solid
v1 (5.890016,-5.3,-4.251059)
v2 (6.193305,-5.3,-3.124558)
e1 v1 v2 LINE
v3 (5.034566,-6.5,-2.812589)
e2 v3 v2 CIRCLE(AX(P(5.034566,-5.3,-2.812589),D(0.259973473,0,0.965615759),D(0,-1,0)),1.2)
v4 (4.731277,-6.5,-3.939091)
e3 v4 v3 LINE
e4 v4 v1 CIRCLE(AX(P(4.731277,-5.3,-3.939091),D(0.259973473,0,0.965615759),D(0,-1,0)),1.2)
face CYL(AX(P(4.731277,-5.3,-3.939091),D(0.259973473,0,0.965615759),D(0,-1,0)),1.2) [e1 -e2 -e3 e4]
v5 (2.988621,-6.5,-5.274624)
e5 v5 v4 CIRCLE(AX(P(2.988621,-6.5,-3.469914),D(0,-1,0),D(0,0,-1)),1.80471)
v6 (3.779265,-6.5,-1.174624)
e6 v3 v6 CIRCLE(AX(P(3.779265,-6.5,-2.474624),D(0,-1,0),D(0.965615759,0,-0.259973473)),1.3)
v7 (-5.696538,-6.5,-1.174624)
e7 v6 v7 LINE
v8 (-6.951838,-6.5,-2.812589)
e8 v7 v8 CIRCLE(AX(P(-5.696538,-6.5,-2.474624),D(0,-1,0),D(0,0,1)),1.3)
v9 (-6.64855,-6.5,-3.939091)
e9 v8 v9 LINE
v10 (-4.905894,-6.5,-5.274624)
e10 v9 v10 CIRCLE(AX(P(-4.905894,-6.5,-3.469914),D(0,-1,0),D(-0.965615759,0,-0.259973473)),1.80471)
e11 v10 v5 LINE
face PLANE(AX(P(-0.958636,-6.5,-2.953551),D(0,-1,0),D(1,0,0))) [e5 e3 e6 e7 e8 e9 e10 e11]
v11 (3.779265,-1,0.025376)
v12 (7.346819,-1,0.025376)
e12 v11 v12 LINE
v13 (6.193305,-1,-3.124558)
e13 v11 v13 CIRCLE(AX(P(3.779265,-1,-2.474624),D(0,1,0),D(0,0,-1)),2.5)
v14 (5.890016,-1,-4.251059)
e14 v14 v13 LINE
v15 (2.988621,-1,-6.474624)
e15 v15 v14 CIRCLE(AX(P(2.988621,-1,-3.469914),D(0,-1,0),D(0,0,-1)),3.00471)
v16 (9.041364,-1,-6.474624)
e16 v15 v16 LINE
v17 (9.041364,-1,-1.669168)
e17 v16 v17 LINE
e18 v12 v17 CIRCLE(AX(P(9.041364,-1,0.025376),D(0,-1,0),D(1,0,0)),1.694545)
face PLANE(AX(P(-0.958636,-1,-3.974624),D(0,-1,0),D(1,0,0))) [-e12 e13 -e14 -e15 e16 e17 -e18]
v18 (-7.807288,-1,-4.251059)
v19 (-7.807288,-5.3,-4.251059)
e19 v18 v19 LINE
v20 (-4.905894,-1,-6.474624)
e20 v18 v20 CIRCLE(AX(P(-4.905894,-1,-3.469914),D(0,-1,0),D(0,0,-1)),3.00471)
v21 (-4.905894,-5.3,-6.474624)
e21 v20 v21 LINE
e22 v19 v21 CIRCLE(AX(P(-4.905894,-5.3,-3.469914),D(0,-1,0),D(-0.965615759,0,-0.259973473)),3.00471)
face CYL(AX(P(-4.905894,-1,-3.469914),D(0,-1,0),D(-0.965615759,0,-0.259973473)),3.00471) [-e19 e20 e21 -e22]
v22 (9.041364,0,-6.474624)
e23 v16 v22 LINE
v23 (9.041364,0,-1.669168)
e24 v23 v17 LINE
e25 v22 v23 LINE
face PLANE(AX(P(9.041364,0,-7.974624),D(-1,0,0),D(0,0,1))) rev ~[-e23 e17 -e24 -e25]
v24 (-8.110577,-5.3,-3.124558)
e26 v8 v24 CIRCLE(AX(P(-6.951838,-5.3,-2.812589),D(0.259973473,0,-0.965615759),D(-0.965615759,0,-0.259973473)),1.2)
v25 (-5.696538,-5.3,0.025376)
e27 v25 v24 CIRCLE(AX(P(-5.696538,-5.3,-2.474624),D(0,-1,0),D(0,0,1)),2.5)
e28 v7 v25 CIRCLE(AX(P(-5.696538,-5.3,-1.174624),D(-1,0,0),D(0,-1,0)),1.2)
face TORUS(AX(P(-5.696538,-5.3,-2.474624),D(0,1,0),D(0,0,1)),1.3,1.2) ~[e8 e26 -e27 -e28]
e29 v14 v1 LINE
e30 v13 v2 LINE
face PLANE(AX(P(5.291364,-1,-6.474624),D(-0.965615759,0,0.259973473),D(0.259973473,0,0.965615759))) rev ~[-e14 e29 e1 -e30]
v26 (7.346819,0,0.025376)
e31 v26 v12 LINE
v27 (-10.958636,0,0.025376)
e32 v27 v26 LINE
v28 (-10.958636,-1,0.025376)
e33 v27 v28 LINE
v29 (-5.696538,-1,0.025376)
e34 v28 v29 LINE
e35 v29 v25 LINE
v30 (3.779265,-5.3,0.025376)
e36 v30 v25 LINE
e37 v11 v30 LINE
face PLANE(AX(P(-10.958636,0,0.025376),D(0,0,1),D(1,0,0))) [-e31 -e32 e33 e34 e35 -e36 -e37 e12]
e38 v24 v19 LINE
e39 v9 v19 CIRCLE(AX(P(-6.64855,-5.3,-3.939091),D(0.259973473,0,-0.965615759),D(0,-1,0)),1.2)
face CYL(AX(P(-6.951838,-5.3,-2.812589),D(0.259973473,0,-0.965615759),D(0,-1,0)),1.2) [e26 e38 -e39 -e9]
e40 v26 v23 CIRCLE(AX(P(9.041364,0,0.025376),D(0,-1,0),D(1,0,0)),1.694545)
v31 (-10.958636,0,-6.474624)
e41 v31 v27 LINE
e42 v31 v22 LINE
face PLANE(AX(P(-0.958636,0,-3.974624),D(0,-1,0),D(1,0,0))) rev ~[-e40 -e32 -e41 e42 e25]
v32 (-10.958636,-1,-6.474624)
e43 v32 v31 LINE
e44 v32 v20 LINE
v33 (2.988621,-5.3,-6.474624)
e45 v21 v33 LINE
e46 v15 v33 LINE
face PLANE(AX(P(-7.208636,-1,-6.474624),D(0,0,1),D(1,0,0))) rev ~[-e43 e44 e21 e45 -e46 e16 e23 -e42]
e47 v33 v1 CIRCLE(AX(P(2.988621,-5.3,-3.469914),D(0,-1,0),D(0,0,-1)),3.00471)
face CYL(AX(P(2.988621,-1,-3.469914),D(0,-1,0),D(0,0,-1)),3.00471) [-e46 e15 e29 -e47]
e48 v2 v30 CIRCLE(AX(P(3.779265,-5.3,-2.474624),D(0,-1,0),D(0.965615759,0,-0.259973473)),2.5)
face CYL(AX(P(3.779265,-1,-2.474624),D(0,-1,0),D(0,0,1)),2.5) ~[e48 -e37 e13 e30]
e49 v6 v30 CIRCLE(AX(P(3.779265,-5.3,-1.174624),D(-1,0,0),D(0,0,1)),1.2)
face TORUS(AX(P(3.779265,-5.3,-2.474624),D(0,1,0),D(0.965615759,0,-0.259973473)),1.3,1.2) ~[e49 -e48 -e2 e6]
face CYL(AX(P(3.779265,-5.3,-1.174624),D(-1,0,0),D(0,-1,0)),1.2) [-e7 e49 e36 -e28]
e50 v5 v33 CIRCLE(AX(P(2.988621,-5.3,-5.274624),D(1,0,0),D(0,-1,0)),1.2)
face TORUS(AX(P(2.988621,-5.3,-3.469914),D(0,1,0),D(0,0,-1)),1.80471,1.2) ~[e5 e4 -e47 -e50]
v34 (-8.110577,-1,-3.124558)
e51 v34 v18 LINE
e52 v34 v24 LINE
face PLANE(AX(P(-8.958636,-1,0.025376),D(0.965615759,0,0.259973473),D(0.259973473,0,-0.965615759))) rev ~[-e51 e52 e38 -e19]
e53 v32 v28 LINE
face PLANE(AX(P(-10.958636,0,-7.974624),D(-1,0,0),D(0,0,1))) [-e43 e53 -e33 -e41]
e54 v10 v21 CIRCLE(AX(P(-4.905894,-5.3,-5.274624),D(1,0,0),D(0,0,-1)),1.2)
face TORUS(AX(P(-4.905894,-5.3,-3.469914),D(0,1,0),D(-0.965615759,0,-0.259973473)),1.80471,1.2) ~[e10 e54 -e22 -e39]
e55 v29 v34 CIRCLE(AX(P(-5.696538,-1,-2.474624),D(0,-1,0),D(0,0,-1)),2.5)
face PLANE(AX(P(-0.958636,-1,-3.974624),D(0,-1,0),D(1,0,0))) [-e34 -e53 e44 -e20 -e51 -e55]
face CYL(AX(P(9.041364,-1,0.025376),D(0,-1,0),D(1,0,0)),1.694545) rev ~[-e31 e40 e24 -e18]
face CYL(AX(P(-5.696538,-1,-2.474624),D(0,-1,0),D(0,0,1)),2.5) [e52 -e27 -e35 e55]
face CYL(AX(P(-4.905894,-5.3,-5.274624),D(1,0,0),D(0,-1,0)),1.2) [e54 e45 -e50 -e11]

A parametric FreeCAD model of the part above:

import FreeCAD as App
import Part
import Sketcher
from FreeCAD import Vector
Q = App.Units.Quantity


def edges_at(feature, points):
    """Names of the edges that pass closest to the given points."""
    edges = feature.Shape.Edges
    near = lambda p: min(range(len(edges)), key=lambda i: edges[i].distToShape(Part.Vertex(*p))[0])
    return sorted({f"Edge{near(p) + 1}" for p in points})

doc = App.newDocument("Part")
body = doc.addObject("PartDesign::Body", "Body")

# Sketch on XZ plane
sketch1 = body.newObject("Sketcher::SketchObject", "Sketch")
sketch1.AttachmentSupport = (doc.getObject("XZ_Plane"), [""])
sketch1.MapMode = "FlatFace"
sketch1.addGeometry(Part.LineSegment(Vector(-11, 0, 0), Vector(-11, -8, 0)), False)
sketch1.addGeometry(Part.LineSegment(Vector(-11, -8, 0), Vector(9, -8, 0)), False)
sketch1.addGeometry(Part.LineSegment(Vector(9, -8, 0), Vector(9, 0, 0)), False)
sketch1.addGeometry(Part.LineSegment(Vector(9, 0, 0), Vector(-11, 0, 0)), False)
sketch1.addConstraint(Sketcher.Constraint("Coincident", 0, 2, 1, 1))
sketch1.addConstraint(Sketcher.Constraint("Coincident", 1, 2, 2, 1))
sketch1.addConstraint(Sketcher.Constraint("Coincident", 2, 2, 3, 1))
sketch1.addConstraint(Sketcher.Constraint("Coincident", 3, 2, 0, 1))
sketch1.addConstraint(Sketcher.Constraint("Vertical", 0))
sketch1.addConstraint(Sketcher.Constraint("Horizontal", 1))
sketch1.addConstraint(Sketcher.Constraint("Vertical", 2))
sketch1.addConstraint(Sketcher.Constraint("Horizontal", 3))
sketch1.addConstraint(Sketcher.Constraint("DistanceX", 1, 1, 1, 2, Q("20 mm")))
sketch1.addConstraint(Sketcher.Constraint("DistanceY", 0, 2, 0, 1, Q("8 mm")))
sketch1.addConstraint(Sketcher.Constraint("DistanceX", 0, 2, -1, 1, Q("10.958636 mm")))
sketch1.addConstraint(Sketcher.Constraint("DistanceY", 0, 2, -1, 1, Q("7.974624 mm")))
pad1 = body.newObject("PartDesign::Pad", "Pad")
pad1.Profile = sketch1
pad1.Length = 1

# Sketch on XZ plane
sketch2 = body.newObject("Sketcher::SketchObject", "Sketch001")
sketch2.AttachmentSupport = (doc.getObject("XZ_Plane"), [""])
sketch2.MapMode = "FlatFace"
sketch2.AttachmentOffset = App.Placement(Vector(0, 0, 1), App.Rotation())
sketch2.addGeometry(Part.LineSegment(Vector(7, 0, 0), Vector(-9, 0, 0)), False)
sketch2.addGeometry(Part.LineSegment(Vector(-9, 0, 0), Vector(-7, -6, 0)), False)
sketch2.addGeometry(Part.LineSegment(Vector(-7, -6, 0), Vector(5, -6, 0)), False)
sketch2.addGeometry(Part.LineSegment(Vector(5, -6, 0), Vector(7, 0, 0)), False)
sketch2.addConstraint(Sketcher.Constraint("Coincident", 0, 2, 1, 1))
sketch2.addConstraint(Sketcher.Constraint("Coincident", 1, 2, 2, 1))
sketch2.addConstraint(Sketcher.Constraint("Coincident", 2, 2, 3, 1))
sketch2.addConstraint(Sketcher.Constraint("Coincident", 3, 2, 0, 1))
sketch2.addConstraint(Sketcher.Constraint("Horizontal", 0))
sketch2.addConstraint(Sketcher.Constraint("Horizontal", 2))
sketch2.addConstraint(Sketcher.Constraint("Equal", 1, 3))
sketch2.addConstraint(Sketcher.Constraint("DistanceX", 0, 2, 0, 1, Q("16 mm")))
sketch2.addConstraint(Sketcher.Constraint("DistanceX", 2, 1, 2, 2, Q("12.5 mm")))
sketch2.addConstraint(Sketcher.Constraint("DistanceY", 1, 2, 0, 2, Q("6.5 mm")))
sketch2.addConstraint(Sketcher.Constraint("DistanceX", 0, 2, -1, 1, Q("8.958636 mm")))
sketch2.addConstraint(Sketcher.Constraint("DistanceY", -1, 1, 0, 2, Q("0.025376 mm")))
pad2 = body.newObject("PartDesign::Pad", "Pad001")
pad2.Profile = sketch2
pad2.Length = 5.5
doc.recompute()

fillet = body.newObject("PartDesign::Fillet", "Fillet")
fillet.Base = (pad2, edges_at(pad2, [(7.041, -3.75, 0.025), (-8.959, -3.75, 0.025)]))
fillet.Radius = 2.5
doc.recompute()

fillet2 = body.newObject("PartDesign::Fillet", "Fillet001")
fillet2.Base = (fillet, edges_at(fillet, [(5.291, -3.75, -6.475), (-7.209, -3.75, -6.475)]))
fillet2.Radius = 3.00471
doc.recompute()

fillet3 = body.newObject("PartDesign::Fillet", "Fillet002")
fillet3.Base = (fillet2, edges_at(fillet2, [
    (6.042, -6.5, -3.688),
    (4.816, -6.5, -5.855),
    (5.764, -6.5, -0.954),
    (-0.959, -6.5, -6.475),
    (-0.959, -6.5, 0.025),
    (-6.734, -6.5, -5.855),
    (-7.681, -6.5, -0.954),
    (-7.959, -6.5, -3.688),
]))
fillet3.Radius = 1.2

# Sketch on XZ plane
sketch3 = body.newObject("Sketcher::SketchObject", "Sketch002")
sketch3.AttachmentSupport = (doc.getObject("XZ_Plane"), [""])
sketch3.MapMode = "FlatFace"
sketch3.AttachmentOffset = App.Placement(Vector(0, 0, 1), App.Rotation())
sketch3.addGeometry(Part.LineSegment(Vector(-11, -6.5, 0), Vector(-11, -8, 0)), False)
sketch3.addGeometry(Part.LineSegment(Vector(-11, -8, 0), Vector(9, -8, 0)), False)
sketch3.addGeometry(Part.LineSegment(Vector(9, -8, 0), Vector(9, -6.5, 0)), False)
sketch3.addGeometry(Part.LineSegment(Vector(9, -6.5, 0), Vector(-11, -6.5, 0)), False)
sketch3.addConstraint(Sketcher.Constraint("Coincident", 0, 2, 1, 1))
sketch3.addConstraint(Sketcher.Constraint("Coincident", 1, 2, 2, 1))
sketch3.addConstraint(Sketcher.Constraint("Coincident", 2, 2, 3, 1))
sketch3.addConstraint(Sketcher.Constraint("Coincident", 3, 2, 0, 1))
sketch3.addConstraint(Sketcher.Constraint("Vertical", 0))
sketch3.addConstraint(Sketcher.Constraint("Horizontal", 1))
sketch3.addConstraint(Sketcher.Constraint("Vertical", 2))
sketch3.addConstraint(Sketcher.Constraint("Horizontal", 3))
sketch3.addConstraint(Sketcher.Constraint("DistanceX", 1, 1, 1, 2, Q("20 mm")))
sketch3.addConstraint(Sketcher.Constraint("DistanceY", 0, 2, 0, 1, Q("1.5 mm")))
sketch3.addConstraint(Sketcher.Constraint("DistanceX", 0, 2, -1, 1, Q("10.958636 mm")))
sketch3.addConstraint(Sketcher.Constraint("DistanceY", 0, 2, -1, 1, Q("7.974624 mm")))
pocket1 = body.newObject("PartDesign::Pocket", "Pocket")
pocket1.Profile = sketch3
pocket1.Length = 25

# Sketch on XZ plane
sketch4 = body.newObject("Sketcher::SketchObject", "Sketch003")
sketch4.AttachmentSupport = (doc.getObject("XZ_Plane"), [""])
sketch4.MapMode = "FlatFace"
sketch4.AttachmentOffset = App.Placement(Vector(0, 0, 1), App.Rotation())
sketch4.addGeometry(Part.Circle(Vector(9, 0, 0), Vector(0, 0, 1), 1.7), False)
sketch4.addConstraint(Sketcher.Constraint("Diameter", 0, Q("3.389089 mm")))
sketch4.addConstraint(Sketcher.Constraint("DistanceX", -1, 1, 0, 3, Q("9.041364 mm")))
sketch4.addConstraint(Sketcher.Constraint("DistanceY", -1, 1, 0, 3, Q("0.025376 mm")))
pocket2 = body.newObject("PartDesign::Pocket", "Pocket001")
pocket2.Profile = sketch4
pocket2.Length = 25

doc.recompute()
